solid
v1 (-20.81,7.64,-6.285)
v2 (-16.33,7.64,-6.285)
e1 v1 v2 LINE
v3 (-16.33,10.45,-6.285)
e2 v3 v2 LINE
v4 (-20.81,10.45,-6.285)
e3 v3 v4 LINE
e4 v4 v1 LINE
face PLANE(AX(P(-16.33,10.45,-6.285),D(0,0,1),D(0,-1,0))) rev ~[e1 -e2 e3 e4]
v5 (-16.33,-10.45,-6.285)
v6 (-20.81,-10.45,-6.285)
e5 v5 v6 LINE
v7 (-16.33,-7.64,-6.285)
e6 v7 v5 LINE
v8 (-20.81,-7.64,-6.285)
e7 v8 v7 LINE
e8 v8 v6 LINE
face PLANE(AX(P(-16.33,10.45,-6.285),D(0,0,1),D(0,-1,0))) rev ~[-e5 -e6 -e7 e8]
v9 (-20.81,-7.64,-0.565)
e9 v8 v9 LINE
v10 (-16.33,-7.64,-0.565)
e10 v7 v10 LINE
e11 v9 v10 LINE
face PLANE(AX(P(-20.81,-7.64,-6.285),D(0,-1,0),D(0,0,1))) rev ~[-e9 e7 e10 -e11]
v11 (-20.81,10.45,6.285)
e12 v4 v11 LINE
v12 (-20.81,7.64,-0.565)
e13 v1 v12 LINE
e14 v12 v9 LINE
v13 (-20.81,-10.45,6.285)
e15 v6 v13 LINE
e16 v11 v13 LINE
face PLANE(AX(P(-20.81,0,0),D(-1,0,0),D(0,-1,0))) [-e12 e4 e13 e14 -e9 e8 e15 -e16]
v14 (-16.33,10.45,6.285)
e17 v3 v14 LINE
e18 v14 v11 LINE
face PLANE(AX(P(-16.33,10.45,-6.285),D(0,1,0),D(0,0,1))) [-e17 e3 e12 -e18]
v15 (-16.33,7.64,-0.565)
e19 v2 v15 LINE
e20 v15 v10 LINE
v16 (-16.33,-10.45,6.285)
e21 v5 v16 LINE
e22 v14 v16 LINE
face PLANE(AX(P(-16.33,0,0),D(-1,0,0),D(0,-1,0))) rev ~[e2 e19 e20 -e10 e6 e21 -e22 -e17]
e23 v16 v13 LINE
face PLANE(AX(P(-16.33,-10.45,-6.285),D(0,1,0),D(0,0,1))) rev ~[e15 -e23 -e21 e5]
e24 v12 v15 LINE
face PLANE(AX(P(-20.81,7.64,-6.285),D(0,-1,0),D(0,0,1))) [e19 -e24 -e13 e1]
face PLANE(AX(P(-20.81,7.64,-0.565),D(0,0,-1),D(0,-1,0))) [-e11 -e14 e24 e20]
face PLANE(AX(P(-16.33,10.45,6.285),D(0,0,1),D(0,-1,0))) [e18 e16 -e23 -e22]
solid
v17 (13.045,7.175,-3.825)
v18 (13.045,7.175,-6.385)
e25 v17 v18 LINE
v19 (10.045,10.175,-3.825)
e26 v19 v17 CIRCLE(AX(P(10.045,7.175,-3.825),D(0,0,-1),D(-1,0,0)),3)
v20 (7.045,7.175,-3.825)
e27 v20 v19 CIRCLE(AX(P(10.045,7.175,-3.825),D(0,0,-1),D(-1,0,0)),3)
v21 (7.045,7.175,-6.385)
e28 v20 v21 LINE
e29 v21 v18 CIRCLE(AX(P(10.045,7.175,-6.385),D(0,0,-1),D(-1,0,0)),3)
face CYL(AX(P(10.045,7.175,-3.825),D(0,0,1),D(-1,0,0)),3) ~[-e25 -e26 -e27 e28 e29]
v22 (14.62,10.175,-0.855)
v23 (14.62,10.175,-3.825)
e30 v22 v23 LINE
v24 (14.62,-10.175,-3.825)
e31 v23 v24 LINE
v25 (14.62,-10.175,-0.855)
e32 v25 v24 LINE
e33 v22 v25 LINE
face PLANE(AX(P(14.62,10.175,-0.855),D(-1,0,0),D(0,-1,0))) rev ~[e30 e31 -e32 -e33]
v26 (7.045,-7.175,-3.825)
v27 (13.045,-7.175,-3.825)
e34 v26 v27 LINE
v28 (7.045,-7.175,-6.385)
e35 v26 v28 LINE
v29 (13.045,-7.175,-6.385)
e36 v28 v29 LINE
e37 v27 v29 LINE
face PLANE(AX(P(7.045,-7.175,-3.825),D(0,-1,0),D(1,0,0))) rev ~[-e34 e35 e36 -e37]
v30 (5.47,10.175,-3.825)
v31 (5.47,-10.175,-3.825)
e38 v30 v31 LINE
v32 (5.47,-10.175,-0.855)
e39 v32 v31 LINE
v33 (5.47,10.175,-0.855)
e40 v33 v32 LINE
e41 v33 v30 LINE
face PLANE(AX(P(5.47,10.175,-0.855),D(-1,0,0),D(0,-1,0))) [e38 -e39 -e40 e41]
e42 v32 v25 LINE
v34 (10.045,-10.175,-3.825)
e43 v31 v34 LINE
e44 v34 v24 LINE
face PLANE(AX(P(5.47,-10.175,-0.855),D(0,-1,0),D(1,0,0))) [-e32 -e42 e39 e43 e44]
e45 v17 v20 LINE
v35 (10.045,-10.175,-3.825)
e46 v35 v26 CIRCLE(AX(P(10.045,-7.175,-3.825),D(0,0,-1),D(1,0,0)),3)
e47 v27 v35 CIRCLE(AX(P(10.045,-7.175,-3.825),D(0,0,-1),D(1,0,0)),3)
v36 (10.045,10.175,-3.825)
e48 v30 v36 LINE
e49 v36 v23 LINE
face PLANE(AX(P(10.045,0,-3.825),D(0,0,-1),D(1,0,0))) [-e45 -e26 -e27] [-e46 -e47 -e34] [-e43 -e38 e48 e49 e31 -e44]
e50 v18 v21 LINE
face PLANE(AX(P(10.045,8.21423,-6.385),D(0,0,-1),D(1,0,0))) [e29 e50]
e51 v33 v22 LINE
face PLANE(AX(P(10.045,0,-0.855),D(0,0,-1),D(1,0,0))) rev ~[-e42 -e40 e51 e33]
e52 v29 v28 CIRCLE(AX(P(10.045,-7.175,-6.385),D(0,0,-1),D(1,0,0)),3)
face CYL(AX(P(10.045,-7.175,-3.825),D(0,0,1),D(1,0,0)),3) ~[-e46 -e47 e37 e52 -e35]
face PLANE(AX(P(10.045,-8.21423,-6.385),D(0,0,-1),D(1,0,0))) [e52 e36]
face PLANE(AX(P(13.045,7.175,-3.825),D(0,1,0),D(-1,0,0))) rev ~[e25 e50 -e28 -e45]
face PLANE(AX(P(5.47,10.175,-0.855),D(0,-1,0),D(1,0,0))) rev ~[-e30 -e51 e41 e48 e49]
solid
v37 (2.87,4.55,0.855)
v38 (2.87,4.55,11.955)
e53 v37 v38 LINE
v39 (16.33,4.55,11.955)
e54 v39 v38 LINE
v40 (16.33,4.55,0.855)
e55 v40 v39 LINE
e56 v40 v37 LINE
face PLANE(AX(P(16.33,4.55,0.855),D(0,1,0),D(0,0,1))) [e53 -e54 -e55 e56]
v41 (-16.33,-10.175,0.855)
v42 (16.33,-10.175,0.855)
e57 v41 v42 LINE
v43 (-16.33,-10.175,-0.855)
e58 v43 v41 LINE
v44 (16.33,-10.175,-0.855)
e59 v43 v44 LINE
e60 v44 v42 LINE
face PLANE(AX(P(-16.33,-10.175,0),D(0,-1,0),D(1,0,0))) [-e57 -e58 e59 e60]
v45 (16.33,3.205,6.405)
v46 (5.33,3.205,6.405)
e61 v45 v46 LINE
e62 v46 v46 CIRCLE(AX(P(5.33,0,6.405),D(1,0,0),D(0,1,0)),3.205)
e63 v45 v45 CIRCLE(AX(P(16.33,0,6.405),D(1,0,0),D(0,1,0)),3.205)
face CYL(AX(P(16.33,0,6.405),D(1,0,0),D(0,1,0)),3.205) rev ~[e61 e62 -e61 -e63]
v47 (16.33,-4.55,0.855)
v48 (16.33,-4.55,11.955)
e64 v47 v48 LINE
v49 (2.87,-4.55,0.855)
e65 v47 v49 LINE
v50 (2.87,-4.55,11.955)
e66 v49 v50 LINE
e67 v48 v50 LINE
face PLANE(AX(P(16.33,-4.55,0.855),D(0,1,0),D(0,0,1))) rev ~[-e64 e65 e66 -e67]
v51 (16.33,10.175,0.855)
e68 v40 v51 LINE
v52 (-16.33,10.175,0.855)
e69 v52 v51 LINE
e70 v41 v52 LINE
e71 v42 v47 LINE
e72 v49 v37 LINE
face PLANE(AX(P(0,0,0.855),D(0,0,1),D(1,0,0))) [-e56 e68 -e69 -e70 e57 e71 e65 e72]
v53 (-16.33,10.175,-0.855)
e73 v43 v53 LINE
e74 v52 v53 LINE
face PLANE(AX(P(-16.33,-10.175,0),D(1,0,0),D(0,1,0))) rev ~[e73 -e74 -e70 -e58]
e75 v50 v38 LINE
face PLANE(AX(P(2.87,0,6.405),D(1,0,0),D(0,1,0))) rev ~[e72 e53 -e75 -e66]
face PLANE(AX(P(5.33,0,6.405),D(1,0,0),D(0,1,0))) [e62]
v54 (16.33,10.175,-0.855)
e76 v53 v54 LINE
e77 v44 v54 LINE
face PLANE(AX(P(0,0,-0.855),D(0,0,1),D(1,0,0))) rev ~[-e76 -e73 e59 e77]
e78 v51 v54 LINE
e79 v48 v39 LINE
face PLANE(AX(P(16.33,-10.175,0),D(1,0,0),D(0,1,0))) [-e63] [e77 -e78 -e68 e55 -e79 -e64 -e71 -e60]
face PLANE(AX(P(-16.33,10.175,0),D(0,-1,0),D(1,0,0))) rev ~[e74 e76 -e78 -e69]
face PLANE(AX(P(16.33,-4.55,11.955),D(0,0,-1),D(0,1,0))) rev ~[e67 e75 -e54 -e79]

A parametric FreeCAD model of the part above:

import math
import FreeCAD as App
import Part
import Sketcher

V = App.Vector
Q = App.Units.Quantity

doc = App.newDocument("Part")
body = doc.addObject("PartDesign::Body", "Body")

# Sketch on XY plane
sketch1 = body.newObject("Sketcher::SketchObject", "Sketch")
sketch1.AttachmentSupport = (doc.getObject("XY_Plane"), [""])
sketch1.MapMode = "FlatFace"
sketch1.addGeometry([
    Part.LineSegment(V(-16, 10, 0), V(-16, -10, 0)),
    Part.LineSegment(V(-16, -10, 0), V(16, -10, 0)),
    Part.LineSegment(V(16, -10, 0), V(16, 10, 0)),
    Part.LineSegment(V(16, 10, 0), V(-16, 10, 0)),
], False)
sketch1.addConstraint([
    Sketcher.Constraint("Coincident", 0, 2, 1, 1),
    Sketcher.Constraint("Coincident", 1, 2, 2, 1),
    Sketcher.Constraint("Coincident", 2, 2, 3, 1),
    Sketcher.Constraint("Coincident", 3, 2, 0, 1),
    Sketcher.Constraint("Vertical", 0),
    Sketcher.Constraint("Horizontal", 1),
    Sketcher.Constraint("Vertical", 2),
    Sketcher.Constraint("Horizontal", 3),
    Sketcher.Constraint("Symmetric", 0, 2, 2, 2, -1, 1),
    Sketcher.Constraint("DistanceX", 1, 1, 1, 2, Q("32.66 mm")),
    Sketcher.Constraint("DistanceY", 0, 2, 0, 1, Q("20.35 mm")),
])
pad1 = body.newObject("PartDesign::Pad", "Pad")
pad1.Profile = sketch1
pad1.Length = 1.71
pad1.Midplane = True

# Sketch on YZ plane
sketch2 = body.newObject("Sketcher::SketchObject", "Sketch001")
sketch2.AttachmentSupport = (doc.getObject("YZ_Plane"), [""])
sketch2.MapMode = "FlatFace"
sketch2.AttachmentOffset = App.Placement(V(0, 0, 16.33), App.Rotation())
sketch2.addGeometry([
    Part.LineSegment(V(-5, 12, 0), V(-5, 1, 0)),
    Part.LineSegment(V(-5, 1, 0), V(5, 1, 0)),
    Part.LineSegment(V(5, 1, 0), V(5, 12, 0)),
    Part.LineSegment(V(5, 12, 0), V(-5, 12, 0)),
], False)
sketch2.addConstraint([
    Sketcher.Constraint("Coincident", 0, 2, 1, 1),
    Sketcher.Constraint("Coincident", 1, 2, 2, 1),
    Sketcher.Constraint("Coincident", 2, 2, 3, 1),
    Sketcher.Constraint("Coincident", 3, 2, 0, 1),
    Sketcher.Constraint("Vertical", 0),
    Sketcher.Constraint("Horizontal", 1),
    Sketcher.Constraint("Vertical", 2),
    Sketcher.Constraint("Horizontal", 3),
    Sketcher.Constraint("DistanceX", 1, 1, 1, 2, Q("9.1 mm")),
    Sketcher.Constraint("DistanceY", 0, 2, 0, 1, Q("11.1 mm")),
    Sketcher.Constraint("DistanceX", 0, 2, -1, 1, Q("4.55 mm")),
    Sketcher.Constraint("DistanceY", -1, 1, 0, 2, Q("0.855 mm")),
])
pad2 = body.newObject("PartDesign::Pad", "Pad001")
pad2.Profile = sketch2
pad2.Length = 13.46
pad2.Reversed = True

# Sketch on YZ plane
sketch3 = body.newObject("Sketcher::SketchObject", "Sketch002")
sketch3.AttachmentSupport = (doc.getObject("YZ_Plane"), [""])
sketch3.MapMode = "FlatFace"
sketch3.AttachmentOffset = App.Placement(V(0, 0, 16.33), App.Rotation())
sketch3.addGeometry(Part.Circle(V(0, 6.4, 0), V(0, 0, 1), 3.2), False)
sketch3.addConstraint([
    Sketcher.Constraint("PointOnObject", 0, 3, -2),
    Sketcher.Constraint("Diameter", 0, Q("6.41 mm")),
    Sketcher.Constraint("DistanceY", -1, 1, 0, 3, Q("6.405 mm")),
])
pocket1 = body.newObject("PartDesign::Pocket", "Pocket")
pocket1.Profile = sketch3
pocket1.Length = 11
body2 = doc.addObject("PartDesign::Body", "Body001")

# Sketch on YZ plane
sketch4 = body2.newObject("Sketcher::SketchObject", "Sketch003")
sketch4.AttachmentSupport = (doc.getObject("YZ_Plane001"), [""])
sketch4.MapMode = "FlatFace"
sketch4.AttachmentOffset = App.Placement(V(0, 0, -16.33), App.Rotation())
sketch4.addGeometry([
    Part.LineSegment(V(10, 6, 0), V(10, -6, 0)),
    Part.LineSegment(V(10, -6, 0), V(-10, -6, 0)),
    Part.LineSegment(V(-10, -6, 0), V(-10, 6, 0)),
    Part.LineSegment(V(-10, 6, 0), V(10, 6, 0)),
], False)
sketch4.addConstraint([
    Sketcher.Constraint("Coincident", 0, 2, 1, 1),
    Sketcher.Constraint("Coincident", 1, 2, 2, 1),
    Sketcher.Constraint("Coincident", 2, 2, 3, 1),
    Sketcher.Constraint("Coincident", 3, 2, 0, 1),
    Sketcher.Constraint("Vertical", 0),
    Sketcher.Constraint("Horizontal", 1),
    Sketcher.Constraint("Vertical", 2),
    Sketcher.Constraint("Horizontal", 3),
    Sketcher.Constraint("Symmetric", 0, 2, 2, 2, -1, 1),
    Sketcher.Constraint("DistanceX", 1, 2, 1, 1, Q("20.9 mm")),
    Sketcher.Constraint("DistanceY", 0, 2, 0, 1, Q("12.57 mm")),
])
pad3 = body2.newObject("PartDesign::Pad", "Pad002")
pad3.Profile = sketch4
pad3.Length = 4.48
pad3.Reversed = True

# Sketch on YZ plane
sketch5 = body2.newObject("Sketcher::SketchObject", "Sketch004")
sketch5.AttachmentSupport = (doc.getObject("YZ_Plane001"), [""])
sketch5.MapMode = "FlatFace"
sketch5.AttachmentOffset = App.Placement(V(0, 0, -20.81), App.Rotation())
sketch5.addGeometry([
    Part.LineSegment(V(8, -1, 0), V(8, -6, 0)),
    Part.LineSegment(V(8, -6, 0), V(-8, -6, 0)),
    Part.LineSegment(V(-8, -6, 0), V(-8, -1, 0)),
    Part.LineSegment(V(-8, -1, 0), V(8, -1, 0)),
], False)
sketch5.addConstraint([
    Sketcher.Constraint("Coincident", 0, 2, 1, 1),
    Sketcher.Constraint("Coincident", 1, 2, 2, 1),
    Sketcher.Constraint("Coincident", 2, 2, 3, 1),
    Sketcher.Constraint("Coincident", 3, 2, 0, 1),
    Sketcher.Constraint("Vertical", 0),
    Sketcher.Constraint("Horizontal", 1),
    Sketcher.Constraint("Vertical", 2),
    Sketcher.Constraint("Horizontal", 3),
    Sketcher.Constraint("DistanceX", 1, 2, 1, 1, Q("15.28 mm")),
    Sketcher.Constraint("DistanceY", 0, 2, 0, 1, Q("5.72 mm")),
    Sketcher.Constraint("DistanceX", -1, 1, 0, 2, Q("7.64 mm")),
    Sketcher.Constraint("DistanceY", 0, 2, -1, 1, Q("6.285 mm")),
])
pocket2 = body2.newObject("PartDesign::Pocket", "Pocket001")
pocket2.Profile = sketch5
pocket2.Type = "ThroughAll"
pocket2.Reversed = True
body3 = doc.addObject("PartDesign::Body", "Body002")

# Sketch on XY plane
sketch6 = body3.newObject("Sketcher::SketchObject", "Sketch005")
sketch6.AttachmentSupport = (doc.getObject("XY_Plane002"), [""])
sketch6.MapMode = "FlatFace"
sketch6.AttachmentOffset = App.Placement(V(0, 0, -0.855), App.Rotation())
sketch6.addGeometry([
    Part.LineSegment(V(5, -10, 0), V(5, 10, 0)),
    Part.LineSegment(V(5, 10, 0), V(15, 10, 0)),
    Part.LineSegment(V(15, 10, 0), V(15, -10, 0)),
    Part.LineSegment(V(15, -10, 0), V(5, -10, 0)),
], False)
sketch6.addConstraint([
    Sketcher.Constraint("Coincident", 0, 2, 1, 1),
    Sketcher.Constraint("Coincident", 1, 2, 2, 1),
    Sketcher.Constraint("Coincident", 2, 2, 3, 1),
    Sketcher.Constraint("Coincident", 3, 2, 0, 1),
    Sketcher.Constraint("Vertical", 0),
    Sketcher.Constraint("Horizontal", 1),
    Sketcher.Constraint("Vertical", 2),
    Sketcher.Constraint("Horizontal", 3),
    Sketcher.Constraint("DistanceX", 1, 1, 1, 2, Q("9.15 mm")),
    Sketcher.Constraint("DistanceY", 0, 1, 0, 2, Q("20.35 mm")),
    Sketcher.Constraint("DistanceX", -1, 1, 0, 2, Q("5.47 mm")),
    Sketcher.Constraint("DistanceY", -1, 1, 0, 2, Q("10.175 mm")),
])
pad4 = body3.newObject("PartDesign::Pad", "Pad003")
pad4.Profile = sketch6
pad4.Length = 2.97
pad4.Reversed = True

# Sketch on XY plane
sketch7 = body3.newObject("Sketcher::SketchObject", "Sketch006")
sketch7.AttachmentSupport = (doc.getObject("XY_Plane002"), [""])
sketch7.MapMode = "FlatFace"
sketch7.AttachmentOffset = App.Placement(V(0, 0, -3.825), App.Rotation())
sketch7.addGeometry([
    Part.LineSegment(V(7, -7.2, 0), V(13, -7.2, 0)),
    Part.ArcOfCircle(Part.Circle(V(10, -7.2, 0), V(0, 0, 1), 3), math.radians(180), math.radians(360)),
    Part.ArcOfCircle(Part.Circle(V(10, 7.2, 0), V(0, 0, 1), 3), math.radians(0), math.radians(180)),
    Part.LineSegment(V(13, 7.2, 0), V(7, 7.2, 0)),
], False)
sketch7.addConstraint([
    Sketcher.Constraint("Coincident", 0, 1, 1, 1),
    Sketcher.Constraint("Coincident", 1, 2, 0, 2),
    Sketcher.Constraint("Coincident", 2, 1, 3, 1),
    Sketcher.Constraint("Coincident", 3, 2, 2, 2),
    Sketcher.Constraint("Horizontal", 0),
    Sketcher.Constraint("Horizontal", 3),
    Sketcher.Constraint("Equal", 1, 2),
    Sketcher.Constraint("Symmetric", 1, 3, 2, 3, -1),
    Sketcher.Constraint("Horizontal", 1, 3, 0, 1),
    Sketcher.Constraint("Radius", 1, Q("3 mm")),
    Sketcher.Constraint("DistanceY", 1, 3, 2, 3, Q("14.35 mm")),
    Sketcher.Constraint("DistanceY", 1, 2, 2, 1, Q("14.35 mm")),
    Sketcher.Constraint("DistanceX", -1, 1, 1, 3, Q("10.045 mm")),
])
pad5 = body3.newObject("PartDesign::Pad", "Pad004")
pad5.Profile = sketch7
pad5.Length = 2.56
pad5.Reversed = True

doc.recompute()
